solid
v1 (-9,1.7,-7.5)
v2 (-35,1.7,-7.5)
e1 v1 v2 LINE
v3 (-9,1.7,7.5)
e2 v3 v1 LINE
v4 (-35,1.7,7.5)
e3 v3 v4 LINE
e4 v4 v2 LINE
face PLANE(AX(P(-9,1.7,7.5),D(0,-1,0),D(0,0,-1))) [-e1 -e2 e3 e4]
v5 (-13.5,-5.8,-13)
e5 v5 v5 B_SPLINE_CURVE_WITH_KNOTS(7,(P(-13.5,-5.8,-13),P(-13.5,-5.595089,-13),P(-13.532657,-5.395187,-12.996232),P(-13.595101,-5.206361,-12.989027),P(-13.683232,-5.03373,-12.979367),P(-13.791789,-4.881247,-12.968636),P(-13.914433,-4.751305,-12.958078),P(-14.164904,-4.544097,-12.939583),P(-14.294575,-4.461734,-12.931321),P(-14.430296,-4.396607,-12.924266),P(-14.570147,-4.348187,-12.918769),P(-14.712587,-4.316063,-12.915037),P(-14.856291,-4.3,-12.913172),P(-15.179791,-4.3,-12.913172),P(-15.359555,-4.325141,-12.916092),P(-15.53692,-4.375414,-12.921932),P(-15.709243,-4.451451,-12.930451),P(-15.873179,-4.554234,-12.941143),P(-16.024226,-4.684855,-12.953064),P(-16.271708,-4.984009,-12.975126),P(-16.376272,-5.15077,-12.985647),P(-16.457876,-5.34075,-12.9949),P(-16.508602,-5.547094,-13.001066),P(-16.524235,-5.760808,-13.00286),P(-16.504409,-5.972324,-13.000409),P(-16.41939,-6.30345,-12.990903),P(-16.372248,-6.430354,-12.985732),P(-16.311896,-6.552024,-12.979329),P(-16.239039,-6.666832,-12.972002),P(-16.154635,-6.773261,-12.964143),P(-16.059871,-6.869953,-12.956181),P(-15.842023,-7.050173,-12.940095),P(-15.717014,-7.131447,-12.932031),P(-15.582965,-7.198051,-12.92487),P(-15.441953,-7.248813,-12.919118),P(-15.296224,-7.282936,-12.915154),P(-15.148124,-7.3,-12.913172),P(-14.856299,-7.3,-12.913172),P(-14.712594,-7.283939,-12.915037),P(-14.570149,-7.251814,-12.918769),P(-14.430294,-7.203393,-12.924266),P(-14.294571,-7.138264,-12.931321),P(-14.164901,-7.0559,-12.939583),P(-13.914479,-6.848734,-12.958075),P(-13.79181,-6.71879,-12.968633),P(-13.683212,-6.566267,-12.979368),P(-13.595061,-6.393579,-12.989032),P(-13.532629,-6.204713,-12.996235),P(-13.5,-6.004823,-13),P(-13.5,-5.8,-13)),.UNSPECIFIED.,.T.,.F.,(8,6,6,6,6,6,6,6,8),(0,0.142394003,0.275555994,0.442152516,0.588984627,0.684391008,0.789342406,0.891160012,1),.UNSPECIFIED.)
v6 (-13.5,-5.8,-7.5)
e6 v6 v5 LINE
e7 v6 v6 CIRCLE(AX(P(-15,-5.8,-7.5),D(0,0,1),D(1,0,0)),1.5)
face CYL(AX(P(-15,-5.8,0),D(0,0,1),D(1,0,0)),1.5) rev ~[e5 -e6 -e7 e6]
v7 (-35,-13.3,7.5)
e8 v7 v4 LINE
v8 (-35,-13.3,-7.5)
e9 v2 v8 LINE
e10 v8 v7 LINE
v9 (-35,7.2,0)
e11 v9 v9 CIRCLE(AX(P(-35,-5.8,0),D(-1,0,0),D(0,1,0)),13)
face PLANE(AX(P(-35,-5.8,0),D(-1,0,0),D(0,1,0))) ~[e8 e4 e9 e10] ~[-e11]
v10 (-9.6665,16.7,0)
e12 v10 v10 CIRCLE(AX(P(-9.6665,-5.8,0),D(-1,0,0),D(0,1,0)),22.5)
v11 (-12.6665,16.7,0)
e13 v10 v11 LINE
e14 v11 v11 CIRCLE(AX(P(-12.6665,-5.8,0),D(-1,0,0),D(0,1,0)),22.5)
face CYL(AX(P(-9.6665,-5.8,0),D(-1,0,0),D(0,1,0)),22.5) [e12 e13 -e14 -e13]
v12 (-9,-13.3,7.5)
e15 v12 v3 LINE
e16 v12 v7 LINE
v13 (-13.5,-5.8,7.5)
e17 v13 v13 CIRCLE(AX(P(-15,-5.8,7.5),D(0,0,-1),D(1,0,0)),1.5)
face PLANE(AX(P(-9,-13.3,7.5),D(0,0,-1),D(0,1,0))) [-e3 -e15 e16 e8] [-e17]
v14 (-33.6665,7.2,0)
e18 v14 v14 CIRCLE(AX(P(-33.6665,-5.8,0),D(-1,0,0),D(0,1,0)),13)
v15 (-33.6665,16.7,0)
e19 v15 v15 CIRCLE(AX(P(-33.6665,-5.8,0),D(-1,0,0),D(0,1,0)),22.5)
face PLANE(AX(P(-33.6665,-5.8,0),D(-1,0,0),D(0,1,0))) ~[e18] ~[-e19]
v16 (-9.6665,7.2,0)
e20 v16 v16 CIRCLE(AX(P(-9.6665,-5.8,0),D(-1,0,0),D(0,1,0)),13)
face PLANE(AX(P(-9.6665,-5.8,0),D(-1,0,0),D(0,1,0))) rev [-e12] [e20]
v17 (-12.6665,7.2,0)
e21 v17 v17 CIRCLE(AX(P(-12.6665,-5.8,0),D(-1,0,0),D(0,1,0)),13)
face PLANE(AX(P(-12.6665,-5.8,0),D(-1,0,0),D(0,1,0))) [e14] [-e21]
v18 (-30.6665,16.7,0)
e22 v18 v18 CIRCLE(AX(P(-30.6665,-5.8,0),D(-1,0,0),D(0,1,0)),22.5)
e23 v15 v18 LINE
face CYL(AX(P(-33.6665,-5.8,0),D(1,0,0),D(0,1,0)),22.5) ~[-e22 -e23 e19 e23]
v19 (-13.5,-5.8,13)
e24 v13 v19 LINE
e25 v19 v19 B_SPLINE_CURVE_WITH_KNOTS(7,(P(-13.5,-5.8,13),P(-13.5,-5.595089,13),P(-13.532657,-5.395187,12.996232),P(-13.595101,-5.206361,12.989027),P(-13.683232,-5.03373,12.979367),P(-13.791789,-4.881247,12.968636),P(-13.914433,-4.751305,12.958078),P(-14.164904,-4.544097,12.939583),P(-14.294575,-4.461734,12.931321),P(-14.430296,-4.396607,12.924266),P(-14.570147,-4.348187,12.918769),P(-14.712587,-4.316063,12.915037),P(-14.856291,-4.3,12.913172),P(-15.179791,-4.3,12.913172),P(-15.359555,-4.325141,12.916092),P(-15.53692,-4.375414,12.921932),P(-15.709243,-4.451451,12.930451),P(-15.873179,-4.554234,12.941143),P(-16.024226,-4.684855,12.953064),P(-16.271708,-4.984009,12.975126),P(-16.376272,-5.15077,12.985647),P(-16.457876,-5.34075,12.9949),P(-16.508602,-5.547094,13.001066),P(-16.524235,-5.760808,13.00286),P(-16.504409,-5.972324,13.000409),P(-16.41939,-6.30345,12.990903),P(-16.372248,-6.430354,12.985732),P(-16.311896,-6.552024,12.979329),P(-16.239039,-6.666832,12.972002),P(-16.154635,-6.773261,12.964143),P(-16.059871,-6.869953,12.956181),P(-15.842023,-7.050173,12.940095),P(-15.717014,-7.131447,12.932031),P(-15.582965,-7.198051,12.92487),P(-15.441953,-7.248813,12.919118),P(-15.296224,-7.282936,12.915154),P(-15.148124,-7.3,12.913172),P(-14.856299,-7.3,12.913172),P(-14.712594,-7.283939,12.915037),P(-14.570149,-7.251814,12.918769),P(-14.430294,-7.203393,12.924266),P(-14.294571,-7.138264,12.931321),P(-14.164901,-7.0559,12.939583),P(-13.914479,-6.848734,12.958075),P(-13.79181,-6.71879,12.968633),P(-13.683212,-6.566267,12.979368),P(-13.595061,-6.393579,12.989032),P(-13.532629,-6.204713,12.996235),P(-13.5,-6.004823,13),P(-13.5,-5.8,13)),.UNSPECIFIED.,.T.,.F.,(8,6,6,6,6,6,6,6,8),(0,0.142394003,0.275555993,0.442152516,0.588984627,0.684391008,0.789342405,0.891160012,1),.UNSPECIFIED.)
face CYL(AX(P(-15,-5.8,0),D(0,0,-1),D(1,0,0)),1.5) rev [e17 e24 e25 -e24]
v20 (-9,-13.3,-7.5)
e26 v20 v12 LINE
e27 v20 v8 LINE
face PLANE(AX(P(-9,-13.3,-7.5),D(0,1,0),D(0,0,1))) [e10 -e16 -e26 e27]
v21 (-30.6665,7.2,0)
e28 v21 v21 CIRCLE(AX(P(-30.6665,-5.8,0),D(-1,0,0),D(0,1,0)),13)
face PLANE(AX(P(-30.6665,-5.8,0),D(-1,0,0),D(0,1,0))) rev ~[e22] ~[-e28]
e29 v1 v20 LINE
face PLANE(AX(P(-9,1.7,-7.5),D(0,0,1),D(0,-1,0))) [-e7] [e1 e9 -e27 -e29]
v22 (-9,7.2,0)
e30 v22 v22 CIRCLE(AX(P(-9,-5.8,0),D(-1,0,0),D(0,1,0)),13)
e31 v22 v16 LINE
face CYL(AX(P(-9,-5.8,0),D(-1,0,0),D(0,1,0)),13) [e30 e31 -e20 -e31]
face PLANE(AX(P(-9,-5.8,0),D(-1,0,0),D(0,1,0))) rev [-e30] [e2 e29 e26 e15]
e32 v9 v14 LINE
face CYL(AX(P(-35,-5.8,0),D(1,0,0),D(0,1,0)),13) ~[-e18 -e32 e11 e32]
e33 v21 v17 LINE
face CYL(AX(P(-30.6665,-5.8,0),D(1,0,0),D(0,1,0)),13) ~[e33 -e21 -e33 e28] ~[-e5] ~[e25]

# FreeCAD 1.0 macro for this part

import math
import FreeCAD as App
import Part
import Sketcher

doc = App.newDocument("Part")
params = doc.addObject("Spreadsheet::Sheet", "Params")
for row, (alias, value) in enumerate([
    ("sketch1_radius", "1.5 mm"),
    ("sketch1_width", "3 mm"),
    ("sketch1_width2", "18 mm"),
    ("sketch1_width3", "26 mm"),
    ("sketch1_height", "13 mm"),
    ("revolution_angle", "360 deg"),
    ("sketch2_width", "15 mm"),
    ("pocket1_length", "100 mm"),
    ("sketch3_diameter", "3 mm"),
    ("pocket2_length", "100 mm"),
], start=1):
    params.set(f"A{row}", alias)
    params.set(f"B{row}", "=" + value)
    params.setAlias(f"B{row}", alias)

body = doc.addObject("PartDesign::Body", "Body")

# Sketch on XY plane
sketch1 = body.newObject("Sketcher::SketchObject", "Sketch")
sketch1.AttachmentSupport = (doc.getObject("XY_Plane"), [""])
sketch1.MapMode = "FlatFace"
sketch1.addGeometry([
    Part.LineSegment(App.Vector(-9, -5.8, 0), App.Vector(-9, 7.2, 0)),  # 0
    Part.LineSegment(App.Vector(-9, 7.2, 0), App.Vector(-9.7, 7.2, 0)),  # 1
    Part.LineSegment(App.Vector(-9.7, 7.2, 0), App.Vector(-9.7, 16.7, 0)),  # 2
    Part.LineSegment(App.Vector(-9.7, 16.7, 0), App.Vector(-12.7, 16.7, 0)),  # 3
    Part.LineSegment(App.Vector(-12.7, 16.7, 0), App.Vector(-12.7, 7.2, 0)),  # 4
    Part.LineSegment(App.Vector(-12.7, 7.2, 0), App.Vector(-30.7, 7.2, 0)),  # 5
    Part.LineSegment(App.Vector(-30.7, 7.2, 0), App.Vector(-30.7, 16.7, 0)),  # 6
    Part.LineSegment(App.Vector(-30.7, 16.7, 0), App.Vector(-33.7, 16.7, 0)),  # 7
    Part.LineSegment(App.Vector(-33.7, 16.7, 0), App.Vector(-33.7, 7.2, 0)),  # 8
    Part.LineSegment(App.Vector(-33.7, 7.2, 0), App.Vector(-35, 7.2, 0)),  # 9
    Part.LineSegment(App.Vector(-35, 7.2, 0), App.Vector(-35, -5.8, 0)),  # 10
    Part.LineSegment(App.Vector(-35, -5.8, 0), App.Vector(-16.5, -5.8, 0)),  # 11
    Part.ArcOfCircle(Part.Circle(App.Vector(-15, -5.8, 0), App.Vector(0, 0, 1), 1.5), math.radians(0), math.radians(180)),  # 12
    Part.LineSegment(App.Vector(-13.5, -5.8, 0), App.Vector(-9, -5.8, 0)),  # 13
], False)
sketch1.addGeometry(Part.LineSegment(App.Vector(-9, -5.8, 0), App.Vector(-35, -5.8, 0)), True)  # axis
sketch1.addConstraint([
    Sketcher.Constraint("Coincident", 0, 2, 1, 1),
    Sketcher.Constraint("Coincident", 1, 2, 2, 1),
    Sketcher.Constraint("Coincident", 2, 2, 3, 1),
    Sketcher.Constraint("Coincident", 3, 2, 4, 1),
    Sketcher.Constraint("Coincident", 4, 2, 5, 1),
    Sketcher.Constraint("Coincident", 5, 2, 6, 1),
    Sketcher.Constraint("Coincident", 6, 2, 7, 1),
    Sketcher.Constraint("Coincident", 7, 2, 8, 1),
    Sketcher.Constraint("Coincident", 8, 2, 9, 1),
    Sketcher.Constraint("Coincident", 9, 2, 10, 1),
    Sketcher.Constraint("Coincident", 10, 2, 11, 1),
    Sketcher.Constraint("Coincident", 11, 2, 12, 2),
    Sketcher.Constraint("Coincident", 12, 1, 13, 1),
    Sketcher.Constraint("Coincident", 13, 2, 0, 1),
    Sketcher.Constraint("Vertical", 0),
    Sketcher.Constraint("Horizontal", 1),
    Sketcher.Constraint("Vertical", 2),
    Sketcher.Constraint("Horizontal", 3),
    Sketcher.Constraint("Vertical", 4),
    Sketcher.Constraint("Horizontal", 5),
    Sketcher.Constraint("Vertical", 6),
    Sketcher.Constraint("Horizontal", 7),
    Sketcher.Constraint("Vertical", 8),
    Sketcher.Constraint("Horizontal", 9),
    Sketcher.Constraint("Vertical", 10),
    Sketcher.Constraint("Horizontal", 11),
    Sketcher.Constraint("Horizontal", 13),
    Sketcher.Constraint("Horizontal", 14),
    Sketcher.Constraint("Coincident", 14, 1, 13, 2),
    Sketcher.Constraint("Coincident", 14, 2, 10, 2),
    Sketcher.Constraint("Horizontal", 1, 2, 4, 2),
    Sketcher.Constraint("Horizontal", 3, 2, 6, 2),
    Sketcher.Constraint("Horizontal", 5, 2, 8, 2),
    Sketcher.Constraint("Horizontal", 12, 3, 10, 2),
    Sketcher.Constraint("Equal", 3, 7),
    Sketcher.Constraint("Radius", 12, 1.5),
    Sketcher.Constraint("DistanceX", 3, 2, 3, 1, 3.0),
    Sketcher.Constraint("DistanceX", 5, 2, 5, 1, 18.0),
    Sketcher.Constraint("DistanceX", 14, 2, 14, 1, 26.0),
    Sketcher.Constraint("DistanceY", 0, 1, 0, 2, 13.0),
    Sketcher.Constraint("DistanceX", 11, 1, 11, 2, 18.5),
    Sketcher.Constraint("DistanceY", 2, 1, 2, 2, 9.5),
    Sketcher.Constraint("DistanceX", 12, 3, -1, 1, 15.0),
    Sketcher.Constraint("DistanceY", 12, 3, -1, 1, 5.8),
    Sketcher.Constraint("DistanceX", 1, 2, 1, 1, 0.6665),
])
sketch1.setExpression("Constraints[35]", "Params.sketch1_radius")
sketch1.setExpression("Constraints[36]", "Params.sketch1_width")
sketch1.setExpression("Constraints[37]", "Params.sketch1_width2")
sketch1.setExpression("Constraints[38]", "Params.sketch1_width3")
sketch1.setExpression("Constraints[39]", "Params.sketch1_height")
revolution = body.newObject("PartDesign::Revolution", "Revolution")
revolution.Profile = sketch1
revolution.ReferenceAxis = (sketch1, ["Axis0"])
revolution.setExpression("Angle", "Params.revolution_angle")

# Sketch on YZ plane
sketch2 = body.newObject("Sketcher::SketchObject", "Sketch001")
sketch2.AttachmentSupport = (doc.getObject("YZ_Plane"), [""])
sketch2.MapMode = "FlatFace"
sketch2.AttachmentOffset = App.Placement(App.Vector(0, 0, -9), App.Rotation())
sketch2.addGeometry([
    Part.LineSegment(App.Vector(-13, 8, 0), App.Vector(-13, -8, 0)),
    Part.LineSegment(App.Vector(-13, -8, 0), App.Vector(2, -8, 0)),
    Part.LineSegment(App.Vector(2, -8, 0), App.Vector(2, 8, 0)),
    Part.LineSegment(App.Vector(2, 8, 0), App.Vector(-13, 8, 0)),
], False)
sketch2.addConstraint([
    Sketcher.Constraint("Coincident", 0, 2, 1, 1),
    Sketcher.Constraint("Coincident", 1, 2, 2, 1),
    Sketcher.Constraint("Coincident", 2, 2, 3, 1),
    Sketcher.Constraint("Coincident", 3, 2, 0, 1),
    Sketcher.Constraint("Vertical", 0),
    Sketcher.Constraint("Horizontal", 1),
    Sketcher.Constraint("Vertical", 2),
    Sketcher.Constraint("Horizontal", 3),
    Sketcher.Constraint("Equal", 3, 0),
    Sketcher.Constraint("DistanceX", 1, 1, 1, 2, 15.0),
    Sketcher.Constraint("DistanceX", 0, 2, -1, 1, 13.3),
    Sketcher.Constraint("DistanceY", 0, 2, -1, 1, 7.5),
])
sketch2.setExpression("Constraints[9]", "Params.sketch2_width")
pocket1 = body.newObject("PartDesign::Pocket", "Pocket")
pocket1.Profile = sketch2
pocket1.setExpression("Length", "Params.pocket1_length")

# Sketch on XY plane
sketch3 = body.newObject("Sketcher::SketchObject", "Sketch002")
sketch3.AttachmentSupport = (doc.getObject("XY_Plane"), [""])
sketch3.MapMode = "FlatFace"
sketch3.addGeometry(Part.Circle(App.Vector(-15, -5.8, 0), App.Vector(0, 0, 1), 1.5), False)
sketch3.addConstraint([
    Sketcher.Constraint("Diameter", 0, 3.0),
    Sketcher.Constraint("DistanceX", 0, 3, -1, 1, 15.0),
    Sketcher.Constraint("DistanceY", 0, 3, -1, 1, 5.8),
])
sketch3.setExpression("Constraints[0]", "Params.sketch3_diameter")
pocket2 = body.newObject("PartDesign::Pocket", "Pocket001")
pocket2.Profile = sketch3
pocket2.setExpression("Length", "Params.pocket2_length")
pocket2.Midplane = True

doc.recompute()
